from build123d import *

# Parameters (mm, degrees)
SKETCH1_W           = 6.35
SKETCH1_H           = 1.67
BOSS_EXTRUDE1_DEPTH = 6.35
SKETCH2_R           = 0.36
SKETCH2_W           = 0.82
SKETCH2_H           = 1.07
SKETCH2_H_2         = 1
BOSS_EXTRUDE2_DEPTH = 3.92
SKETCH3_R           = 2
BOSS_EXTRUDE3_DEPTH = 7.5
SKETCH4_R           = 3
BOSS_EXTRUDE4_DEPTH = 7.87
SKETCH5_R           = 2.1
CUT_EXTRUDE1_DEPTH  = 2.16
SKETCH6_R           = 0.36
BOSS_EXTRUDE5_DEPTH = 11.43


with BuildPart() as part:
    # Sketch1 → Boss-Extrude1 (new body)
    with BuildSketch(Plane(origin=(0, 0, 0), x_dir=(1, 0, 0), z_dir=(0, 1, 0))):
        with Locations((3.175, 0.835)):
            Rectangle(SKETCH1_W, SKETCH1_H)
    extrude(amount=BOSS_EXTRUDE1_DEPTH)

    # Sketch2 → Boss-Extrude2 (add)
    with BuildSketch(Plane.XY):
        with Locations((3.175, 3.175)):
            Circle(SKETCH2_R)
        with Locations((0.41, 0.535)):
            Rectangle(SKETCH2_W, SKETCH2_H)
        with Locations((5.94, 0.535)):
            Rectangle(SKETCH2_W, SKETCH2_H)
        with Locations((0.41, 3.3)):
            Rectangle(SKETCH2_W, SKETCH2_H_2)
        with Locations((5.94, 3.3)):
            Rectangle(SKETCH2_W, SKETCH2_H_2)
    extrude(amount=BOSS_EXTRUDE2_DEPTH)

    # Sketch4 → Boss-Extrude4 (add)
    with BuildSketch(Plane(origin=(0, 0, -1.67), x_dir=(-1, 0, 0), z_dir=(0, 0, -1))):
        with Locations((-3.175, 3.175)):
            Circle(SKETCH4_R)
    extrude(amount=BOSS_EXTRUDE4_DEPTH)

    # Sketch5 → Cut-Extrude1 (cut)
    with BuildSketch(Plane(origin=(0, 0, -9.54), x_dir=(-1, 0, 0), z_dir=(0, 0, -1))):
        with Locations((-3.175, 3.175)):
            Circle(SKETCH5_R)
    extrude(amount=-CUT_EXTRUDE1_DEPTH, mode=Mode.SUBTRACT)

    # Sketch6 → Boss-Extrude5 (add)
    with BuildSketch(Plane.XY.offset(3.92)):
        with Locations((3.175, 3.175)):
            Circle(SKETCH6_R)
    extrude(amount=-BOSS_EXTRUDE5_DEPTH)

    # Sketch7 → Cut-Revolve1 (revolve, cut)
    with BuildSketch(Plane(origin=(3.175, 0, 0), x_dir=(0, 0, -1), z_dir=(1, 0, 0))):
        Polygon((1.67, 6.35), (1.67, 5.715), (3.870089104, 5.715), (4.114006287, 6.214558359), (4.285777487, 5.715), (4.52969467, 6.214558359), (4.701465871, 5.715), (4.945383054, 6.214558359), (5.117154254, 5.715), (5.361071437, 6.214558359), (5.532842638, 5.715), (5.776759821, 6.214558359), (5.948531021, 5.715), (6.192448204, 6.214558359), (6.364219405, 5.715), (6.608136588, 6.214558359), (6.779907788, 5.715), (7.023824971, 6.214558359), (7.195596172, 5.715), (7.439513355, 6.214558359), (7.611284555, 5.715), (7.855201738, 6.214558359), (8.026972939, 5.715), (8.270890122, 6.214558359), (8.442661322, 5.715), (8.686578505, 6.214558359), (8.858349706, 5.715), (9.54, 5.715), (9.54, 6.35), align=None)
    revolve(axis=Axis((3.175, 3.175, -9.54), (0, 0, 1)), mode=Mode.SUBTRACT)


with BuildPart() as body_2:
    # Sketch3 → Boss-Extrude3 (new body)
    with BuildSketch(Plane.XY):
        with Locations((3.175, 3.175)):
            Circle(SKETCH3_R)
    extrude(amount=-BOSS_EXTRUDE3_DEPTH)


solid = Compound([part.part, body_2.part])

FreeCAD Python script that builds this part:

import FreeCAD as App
import Part
import Sketcher

V = App.Vector
Q = App.Units.Quantity

doc = App.newDocument("Part")
body = doc.addObject("PartDesign::Body", "Body")

sketch1 = body.newObject("Sketcher::SketchObject", "Sketch")
sketch1.AttachmentSupport = (doc.getObject("XZ_Plane"), [""])
sketch1.MapMode = "FlatFace"
sketch1.addGeometry([
    Part.LineSegment(V(0, -1.67, 0), V(0, 0, 0)),
    Part.LineSegment(V(0, 0, 0), V(6.35, 0, 0)),
    Part.LineSegment(V(6.35, 0, 0), V(6.35, -1.67, 0)),
    Part.LineSegment(V(6.35, -1.67, 0), V(0, -1.67, 0)),
], False)
sketch1.addConstraint([
    Sketcher.Constraint("Coincident", 0, 2, 1, 1),
    Sketcher.Constraint("Coincident", 1, 2, 2, 1),
    Sketcher.Constraint("Coincident", 2, 2, 3, 1),
    Sketcher.Constraint("Coincident", 3, 2, 0, 1),
    Sketcher.Constraint("Vertical", 0),
    Sketcher.Constraint("Horizontal", 1),
    Sketcher.Constraint("Vertical", 2),
    Sketcher.Constraint("Horizontal", 3),
    Sketcher.Constraint("Coincident", 0, 2, -1, 1),
    Sketcher.Constraint("DistanceX", 1, 1, 1, 2, Q("6.35 mm")),
    Sketcher.Constraint("DistanceY", 0, 1, 0, 2, Q("1.67 mm")),
])
pad1 = body.newObject("PartDesign::Pad", "Pad")
pad1.Profile = sketch1
pad1.Length = 6.35
pad1.Reversed = True

sketch2 = body.newObject("Sketcher::SketchObject", "Sketch001")
sketch2.AttachmentSupport = (doc.getObject("XY_Plane"), [""])
sketch2.MapMode = "FlatFace"
sketch2.addGeometry([
    Part.Circle(V(3.175, 3.175, 0), V(0, 0, 1), 0.36),
    Part.LineSegment(V(0, 1.07, 0), V(0, 0, 0)),
    Part.LineSegment(V(0, 0, 0), V(0.82, 0, 0)),
    Part.LineSegment(V(0.82, 0, 0), V(0.82, 1.07, 0)),
    Part.LineSegment(V(0.82, 1.07, 0), V(0, 1.07, 0)),
    Part.LineSegment(V(5.53, 1.07, 0), V(5.53, 0, 0)),
    Part.LineSegment(V(5.53, 0, 0), V(6.35, 0, 0)),
    Part.LineSegment(V(6.35, 0, 0), V(6.35, 1.07, 0)),
    Part.LineSegment(V(6.35, 1.07, 0), V(5.53, 1.07, 0)),
    Part.LineSegment(V(0, 3.8, 0), V(0, 2.8, 0)),
    Part.LineSegment(V(0, 2.8, 0), V(0.82, 2.8, 0)),
    Part.LineSegment(V(0.82, 2.8, 0), V(0.82, 3.8, 0)),
    Part.LineSegment(V(0.82, 3.8, 0), V(0, 3.8, 0)),
    Part.LineSegment(V(5.53, 3.8, 0), V(5.53, 2.8, 0)),
    Part.LineSegment(V(5.53, 2.8, 0), V(6.35, 2.8, 0)),
    Part.LineSegment(V(6.35, 2.8, 0), V(6.35, 3.8, 0)),
    Part.LineSegment(V(6.35, 3.8, 0), V(5.53, 3.8, 0)),
], False)
sketch2.addConstraint([
    Sketcher.Constraint("Coincident", 1, 2, 2, 1),
    Sketcher.Constraint("Coincident", 2, 2, 3, 1),
    Sketcher.Constraint("Coincident", 3, 2, 4, 1),
    Sketcher.Constraint("Coincident", 4, 2, 1, 1),
    Sketcher.Constraint("Coincident", 5, 2, 6, 1),
    Sketcher.Constraint("Coincident", 6, 2, 7, 1),
    Sketcher.Constraint("Coincident", 7, 2, 8, 1),
    Sketcher.Constraint("Coincident", 8, 2, 5, 1),
    Sketcher.Constraint("Coincident", 9, 2, 10, 1),
    Sketcher.Constraint("Coincident", 10, 2, 11, 1),
    Sketcher.Constraint("Coincident", 11, 2, 12, 1),
    Sketcher.Constraint("Coincident", 12, 2, 9, 1),
    Sketcher.Constraint("Coincident", 13, 2, 14, 1),
    Sketcher.Constraint("Coincident", 14, 2, 15, 1),
    Sketcher.Constraint("Coincident", 15, 2, 16, 1),
    Sketcher.Constraint("Coincident", 16, 2, 13, 1),
    Sketcher.Constraint("Vertical", 1),
    Sketcher.Constraint("Horizontal", 2),
    Sketcher.Constraint("Vertical", 3),
    Sketcher.Constraint("Horizontal", 4),
    Sketcher.Constraint("Vertical", 5),
    Sketcher.Constraint("Horizontal", 6),
    Sketcher.Constraint("Vertical", 7),
    Sketcher.Constraint("Horizontal", 8),
    Sketcher.Constraint("Vertical", 9),
    Sketcher.Constraint("Horizontal", 10),
    Sketcher.Constraint("Vertical", 11),
    Sketcher.Constraint("Horizontal", 12),
    Sketcher.Constraint("Vertical", 13),
    Sketcher.Constraint("Horizontal", 14),
    Sketcher.Constraint("Vertical", 15),
    Sketcher.Constraint("Horizontal", 16),
    Sketcher.Constraint("Coincident", 1, 2, -1, 1),
    Sketcher.Constraint("PointOnObject", 5, 2, -1),
    Sketcher.Constraint("PointOnObject", 9, 2, -2),
    Sketcher.Constraint("Horizontal", 4, 2, 7, 2),
    Sketcher.Constraint("Horizontal", 10, 2, 13, 2),
    Sketcher.Constraint("Horizontal", 12, 2, 15, 2),
    Sketcher.Constraint("Vertical", 3, 2, 10, 2),
    Sketcher.Constraint("Vertical", 8, 2, 13, 2),
    Sketcher.Constraint("Vertical", 7, 2, 14, 2),
    Sketcher.Constraint("Equal", 4, 6),
    Sketcher.Constraint("Diameter", 0, Q("0.72 mm")),
    Sketcher.Constraint("DistanceY", 9, 2, 9, 1, Q("1 mm")),
    Sketcher.Constraint("DistanceX", 2, 1, 2, 2, Q("0.82 mm")),
    Sketcher.Constraint("DistanceY", 1, 2, 1, 1, Q("1.07 mm")),
    Sketcher.Constraint("DistanceY", -1, 1, 9, 2, Q("2.8 mm")),
    Sketcher.Constraint("DistanceX", -1, 1, 5, 2, Q("5.53 mm")),
    Sketcher.Constraint("DistanceX", -1, 1, 0, 3, Q("3.175 mm")),
    Sketcher.Constraint("DistanceY", -1, 1, 0, 3, Q("3.175 mm")),
])
pad2 = body.newObject("PartDesign::Pad", "Pad001")
pad2.Profile = sketch2
pad2.Length = 3.92

sketch3 = body.newObject("Sketcher::SketchObject", "Sketch002")
sketch3.AttachmentSupport = (doc.getObject("XY_Plane"), [""])
sketch3.MapMode = "FlatFace"
sketch3.AttachmentOffset = App.Placement(V(0, 0, -1.67), App.Rotation())
sketch3.addGeometry(Part.Circle(V(3.175, 3.175, 0), V(0, 0, 1), 3), False)
sketch3.addConstraint([
    Sketcher.Constraint("Diameter", 0, Q("6 mm")),
    Sketcher.Constraint("DistanceX", -1, 1, 0, 3, Q("3.175 mm")),
    Sketcher.Constraint("DistanceY", -1, 1, 0, 3, Q("3.175 mm")),
])
pad3 = body.newObject("PartDesign::Pad", "Pad002")
pad3.Profile = sketch3
pad3.Length = 7.87
pad3.Reversed = True

sketch4 = body.newObject("Sketcher::SketchObject", "Sketch003")
sketch4.AttachmentSupport = (doc.getObject("XY_Plane"), [""])
sketch4.MapMode = "FlatFace"
sketch4.AttachmentOffset = App.Placement(V(0, 0, -9.54), App.Rotation())
sketch4.addGeometry(Part.Circle(V(3.175, 3.175, 0), V(0, 0, 1), 2.1), False)
sketch4.addConstraint([
    Sketcher.Constraint("Diameter", 0, Q("4.2 mm")),
    Sketcher.Constraint("DistanceX", -1, 1, 0, 3, Q("3.175 mm")),
    Sketcher.Constraint("DistanceY", -1, 1, 0, 3, Q("3.175 mm")),
])
pocket1 = body.newObject("PartDesign::Pocket", "Pocket")
pocket1.Profile = sketch4
pocket1.Length = 2.16
pocket1.Reversed = True

sketch5 = body.newObject("Sketcher::SketchObject", "Sketch004")
sketch5.AttachmentSupport = (doc.getObject("XY_Plane"), [""])
sketch5.MapMode = "FlatFace"
sketch5.AttachmentOffset = App.Placement(V(0, 0, 3.92), App.Rotation())
sketch5.addGeometry(Part.Circle(V(3.175, 3.175, 0), V(0, 0, 1), 0.36), False)
sketch5.addConstraint([
    Sketcher.Constraint("Diameter", 0, Q("0.72 mm")),
    Sketcher.Constraint("DistanceX", -1, 1, 0, 3, Q("3.175 mm")),
    Sketcher.Constraint("DistanceY", -1, 1, 0, 3, Q("3.175 mm")),
])
pad4 = body.newObject("PartDesign::Pad", "Pad003")
pad4.Profile = sketch5
pad4.Length = 11.43
pad4.Reversed = True

sketch6 = body.newObject("Sketcher::SketchObject", "Sketch005")
sketch6.AttachmentSupport = (doc.getObject("YZ_Plane"), [""])
sketch6.MapMode = "FlatFace"
sketch6.AttachmentOffset = App.Placement(V(0, 0, 3.175), App.Rotation())
sketch6.addGeometry([
    Part.LineSegment(V(6.35, -1.67, 0), V(5.715, -1.67, 0)),
    Part.LineSegment(V(5.715, -1.67, 0), V(5.715, -3.870089, 0)),
    Part.LineSegment(V(5.715, -3.870089, 0), V(6.214558, -4.114006, 0)),
    Part.LineSegment(V(6.214558, -4.114006, 0), V(5.715, -4.285777, 0)),
    Part.LineSegment(V(5.715, -4.285777, 0), V(6.214558, -4.529695, 0)),
    Part.LineSegment(V(6.214558, -4.529695, 0), V(5.715, -4.701466, 0)),
    Part.LineSegment(V(5.715, -4.701466, 0), V(6.214558, -4.945383, 0)),
    Part.LineSegment(V(6.214558, -4.945383, 0), V(5.715, -5.117154, 0)),
    Part.LineSegment(V(5.715, -5.117154, 0), V(6.214558, -5.361071, 0)),
    Part.LineSegment(V(6.214558, -5.361071, 0), V(5.715, -5.532843, 0)),
    Part.LineSegment(V(5.715, -5.532843, 0), V(6.214558, -5.77676, 0)),
    Part.LineSegment(V(6.214558, -5.77676, 0), V(5.715, -5.948531, 0)),
    Part.LineSegment(V(5.715, -5.948531, 0), V(6.214558, -6.192448, 0)),
    Part.LineSegment(V(6.214558, -6.192448, 0), V(5.715, -6.364219, 0)),
    Part.LineSegment(V(5.715, -6.364219, 0), V(6.214558, -6.608137, 0)),
    Part.LineSegment(V(6.214558, -6.608137, 0), V(5.715, -6.779908, 0)),
    Part.LineSegment(V(5.715, -6.779908, 0), V(6.214558, -7.023825, 0)),
    Part.LineSegment(V(6.214558, -7.023825, 0), V(5.715, -7.195596, 0)),
    Part.LineSegment(V(5.715, -7.195596, 0), V(6.214558, -7.439513, 0)),
    Part.LineSegment(V(6.214558, -7.439513, 0), V(5.715, -7.611285, 0)),
    Part.LineSegment(V(5.715, -7.611285, 0), V(6.214558, -7.855202, 0)),
    Part.LineSegment(V(6.214558, -7.855202, 0), V(5.715, -8.026973, 0)),
    Part.LineSegment(V(5.715, -8.026973, 0), V(6.214558, -8.27089, 0)),
    Part.LineSegment(V(6.214558, -8.27089, 0), V(5.715, -8.442661, 0)),
    Part.LineSegment(V(5.715, -8.442661, 0), V(6.214558, -8.686579, 0)),
    Part.LineSegment(V(6.214558, -8.686579, 0), V(5.715, -8.85835, 0)),
    Part.LineSegment(V(5.715, -8.85835, 0), V(5.715, -9.54, 0)),
    Part.LineSegment(V(5.715, -9.54, 0), V(6.35, -9.54, 0)),
    Part.LineSegment(V(6.35, -9.54, 0), V(6.35, -1.67, 0)),
], False)
sketch6.addGeometry(Part.LineSegment(V(3.175, -9.54, 0), V(3.175, -1.67, 0)), True)
sketch6.addConstraint([
    Sketcher.Constraint("Coincident", 0, 2, 1, 1),
    Sketcher.Constraint("Coincident", 1, 2, 2, 1),
    Sketcher.Constraint("Coincident", 2, 2, 3, 1),
    Sketcher.Constraint("Coincident", 3, 2, 4, 1),
    Sketcher.Constraint("Coincident", 4, 2, 5, 1),
    Sketcher.Constraint("Coincident", 5, 2, 6, 1),
    Sketcher.Constraint("Coincident", 6, 2, 7, 1),
    Sketcher.Constraint("Coincident", 7, 2, 8, 1),
    Sketcher.Constraint("Coincident", 8, 2, 9, 1),
    Sketcher.Constraint("Coincident", 9, 2, 10, 1),
    Sketcher.Constraint("Coincident", 10, 2, 11, 1),
    Sketcher.Constraint("Coincident", 11, 2, 12, 1),
    Sketcher.Constraint("Coincident", 12, 2, 13, 1),
    Sketcher.Constraint("Coincident", 13, 2, 14, 1),
    Sketcher.Constraint("Coincident", 14, 2, 15, 1),
    Sketcher.Constraint("Coincident", 15, 2, 16, 1),
    Sketcher.Constraint("Coincident", 16, 2, 17, 1),
    Sketcher.Constraint("Coincident", 17, 2, 18, 1),
    Sketcher.Constraint("Coincident", 18, 2, 19, 1),
    Sketcher.Constraint("Coincident", 19, 2, 20, 1),
    Sketcher.Constraint("Coincident", 20, 2, 21, 1),
    Sketcher.Constraint("Coincident", 21, 2, 22, 1),
    Sketcher.Constraint("Coincident", 22, 2, 23, 1),
    Sketcher.Constraint("Coincident", 23, 2, 24, 1),
    Sketcher.Constraint("Coincident", 24, 2, 25, 1),
    Sketcher.Constraint("Coincident", 25, 2, 26, 1),
    Sketcher.Constraint("Coincident", 26, 2, 27, 1),
    Sketcher.Constraint("Coincident", 27, 2, 28, 1),
    Sketcher.Constraint("Coincident", 28, 2, 0, 1),
    Sketcher.Constraint("Horizontal", 0),
    Sketcher.Constraint("Vertical", 1),
    Sketcher.Constraint("Vertical", 26),
    Sketcher.Constraint("Horizontal", 27),
    Sketcher.Constraint("Vertical", 28),
    Sketcher.Constraint("Vertical", 29),
    Sketcher.Constraint("Parallel", 2, 4),
    Sketcher.Constraint("Parallel", 3, 5),
    Sketcher.Constraint("Parallel", 4, 6),
    Sketcher.Constraint("Parallel", 5, 7),
    Sketcher.Constraint("Parallel", 6, 8),
    Sketcher.Constraint("Parallel", 7, 9),
    Sketcher.Constraint("Parallel", 8, 10),
    Sketcher.Constraint("Parallel", 9, 11),
    Sketcher.Constraint("Parallel", 10, 12),
    Sketcher.Constraint("Parallel", 11, 13),
    Sketcher.Constraint("Parallel", 12, 14),
    Sketcher.Constraint("Parallel", 13, 15),
    Sketcher.Constraint("Parallel", 14, 16),
    Sketcher.Constraint("Parallel", 15, 17),
    Sketcher.Constraint("Parallel", 16, 18),
    Sketcher.Constraint("Parallel", 17, 19),
    Sketcher.Constraint("Parallel", 18, 20),
    Sketcher.Constraint("Parallel", 19, 21),
    Sketcher.Constraint("Parallel", 20, 22),
    Sketcher.Constraint("Parallel", 21, 23),
    Sketcher.Constraint("Parallel", 22, 24),
    Sketcher.Constraint("Parallel", 23, 25),
    Sketcher.Constraint("Horizontal", 27, 2, 29, 1),
    Sketcher.Constraint("Horizontal", 28, 2, 29, 2),
    Sketcher.Constraint("Vertical", 1, 2, 3, 2),
    Sketcher.Constraint("Vertical", 2, 2, 4, 2),
    Sketcher.Constraint("Vertical", 3, 2, 5, 2),
    Sketcher.Constraint("Vertical", 4, 2, 6, 2),
    Sketcher.Constraint("Vertical", 5, 2, 7, 2),
    Sketcher.Constraint("Vertical", 6, 2, 8, 2),
    Sketcher.Constraint("Vertical", 7, 2, 9, 2),
    Sketcher.Constraint("Vertical", 8, 2, 10, 2),
    Sketcher.Constraint("Vertical", 9, 2, 11, 2),
    Sketcher.Constraint("Vertical", 10, 2, 12, 2),
    Sketcher.Constraint("Vertical", 11, 2, 13, 2),
    Sketcher.Constraint("Vertical", 12, 2, 14, 2),
    Sketcher.Constraint("Vertical", 13, 2, 15, 2),
    Sketcher.Constraint("Vertical", 14, 2, 16, 2),
    Sketcher.Constraint("Vertical", 15, 2, 17, 2),
    Sketcher.Constraint("Vertical", 16, 2, 18, 2),
    Sketcher.Constraint("Vertical", 17, 2, 19, 2),
    Sketcher.Constraint("Vertical", 18, 2, 20, 2),
    Sketcher.Constraint("Vertical", 19, 2, 21, 2),
    Sketcher.Constraint("Vertical", 20, 2, 22, 2),
    Sketcher.Constraint("Vertical", 21, 2, 23, 2),
    Sketcher.Constraint("Vertical", 22, 2, 24, 2),
    Sketcher.Constraint("Vertical", 23, 2, 25, 2),
    Sketcher.Constraint("DistanceY", 28, 1, 28, 2, Q("7.87 mm")),
    Sketcher.Constraint("DistanceX", 0, 2, 0, 1, Q("0.635 mm")),
    Sketcher.Constraint("DistanceY", 0, 2, -1, 1, Q("1.67 mm")),
    Sketcher.Constraint("DistanceX", -1, 1, 27, 2, Q("6.35 mm")),
    Sketcher.Constraint("DistanceX", 29, 1, 26, 2, Q("2.54 mm")),
    Sketcher.Constraint("DistanceY", 1, 2, 1, 1, Q("2.200089 mm")),
    Sketcher.Constraint("DistanceY", 26, 2, 26, 1, Q("0.68165 mm")),
    Sketcher.Constraint("DistanceY", 20, 2, -1, 1, Q("7.855202 mm")),
    Sketcher.Constraint("DistanceX", -1, 1, 2, 2, Q("6.214558 mm")),
])
groove = body.newObject("PartDesign::Groove", "Groove")
groove.Profile = sketch6
groove.ReferenceAxis = (sketch6, ["Axis0"])
groove.Angle = 360
body2 = doc.addObject("PartDesign::Body", "Body001")

sketch7 = body2.newObject("Sketcher::SketchObject", "Sketch006")
sketch7.AttachmentSupport = (doc.getObject("XY_Plane001"), [""])
sketch7.MapMode = "FlatFace"
sketch7.addGeometry(Part.Circle(V(3.175, 3.175, 0), V(0, 0, 1), 2), False)
sketch7.addConstraint([
    Sketcher.Constraint("Diameter", 0, Q("4 mm")),
    Sketcher.Constraint("DistanceX", -1, 1, 0, 3, Q("3.175 mm")),
    Sketcher.Constraint("DistanceY", -1, 1, 0, 3, Q("3.175 mm")),
])
pad5 = body2.newObject("PartDesign::Pad", "Pad004")
pad5.Profile = sketch7
pad5.Length = 7.5
pad5.Reversed = True

doc.recompute()
